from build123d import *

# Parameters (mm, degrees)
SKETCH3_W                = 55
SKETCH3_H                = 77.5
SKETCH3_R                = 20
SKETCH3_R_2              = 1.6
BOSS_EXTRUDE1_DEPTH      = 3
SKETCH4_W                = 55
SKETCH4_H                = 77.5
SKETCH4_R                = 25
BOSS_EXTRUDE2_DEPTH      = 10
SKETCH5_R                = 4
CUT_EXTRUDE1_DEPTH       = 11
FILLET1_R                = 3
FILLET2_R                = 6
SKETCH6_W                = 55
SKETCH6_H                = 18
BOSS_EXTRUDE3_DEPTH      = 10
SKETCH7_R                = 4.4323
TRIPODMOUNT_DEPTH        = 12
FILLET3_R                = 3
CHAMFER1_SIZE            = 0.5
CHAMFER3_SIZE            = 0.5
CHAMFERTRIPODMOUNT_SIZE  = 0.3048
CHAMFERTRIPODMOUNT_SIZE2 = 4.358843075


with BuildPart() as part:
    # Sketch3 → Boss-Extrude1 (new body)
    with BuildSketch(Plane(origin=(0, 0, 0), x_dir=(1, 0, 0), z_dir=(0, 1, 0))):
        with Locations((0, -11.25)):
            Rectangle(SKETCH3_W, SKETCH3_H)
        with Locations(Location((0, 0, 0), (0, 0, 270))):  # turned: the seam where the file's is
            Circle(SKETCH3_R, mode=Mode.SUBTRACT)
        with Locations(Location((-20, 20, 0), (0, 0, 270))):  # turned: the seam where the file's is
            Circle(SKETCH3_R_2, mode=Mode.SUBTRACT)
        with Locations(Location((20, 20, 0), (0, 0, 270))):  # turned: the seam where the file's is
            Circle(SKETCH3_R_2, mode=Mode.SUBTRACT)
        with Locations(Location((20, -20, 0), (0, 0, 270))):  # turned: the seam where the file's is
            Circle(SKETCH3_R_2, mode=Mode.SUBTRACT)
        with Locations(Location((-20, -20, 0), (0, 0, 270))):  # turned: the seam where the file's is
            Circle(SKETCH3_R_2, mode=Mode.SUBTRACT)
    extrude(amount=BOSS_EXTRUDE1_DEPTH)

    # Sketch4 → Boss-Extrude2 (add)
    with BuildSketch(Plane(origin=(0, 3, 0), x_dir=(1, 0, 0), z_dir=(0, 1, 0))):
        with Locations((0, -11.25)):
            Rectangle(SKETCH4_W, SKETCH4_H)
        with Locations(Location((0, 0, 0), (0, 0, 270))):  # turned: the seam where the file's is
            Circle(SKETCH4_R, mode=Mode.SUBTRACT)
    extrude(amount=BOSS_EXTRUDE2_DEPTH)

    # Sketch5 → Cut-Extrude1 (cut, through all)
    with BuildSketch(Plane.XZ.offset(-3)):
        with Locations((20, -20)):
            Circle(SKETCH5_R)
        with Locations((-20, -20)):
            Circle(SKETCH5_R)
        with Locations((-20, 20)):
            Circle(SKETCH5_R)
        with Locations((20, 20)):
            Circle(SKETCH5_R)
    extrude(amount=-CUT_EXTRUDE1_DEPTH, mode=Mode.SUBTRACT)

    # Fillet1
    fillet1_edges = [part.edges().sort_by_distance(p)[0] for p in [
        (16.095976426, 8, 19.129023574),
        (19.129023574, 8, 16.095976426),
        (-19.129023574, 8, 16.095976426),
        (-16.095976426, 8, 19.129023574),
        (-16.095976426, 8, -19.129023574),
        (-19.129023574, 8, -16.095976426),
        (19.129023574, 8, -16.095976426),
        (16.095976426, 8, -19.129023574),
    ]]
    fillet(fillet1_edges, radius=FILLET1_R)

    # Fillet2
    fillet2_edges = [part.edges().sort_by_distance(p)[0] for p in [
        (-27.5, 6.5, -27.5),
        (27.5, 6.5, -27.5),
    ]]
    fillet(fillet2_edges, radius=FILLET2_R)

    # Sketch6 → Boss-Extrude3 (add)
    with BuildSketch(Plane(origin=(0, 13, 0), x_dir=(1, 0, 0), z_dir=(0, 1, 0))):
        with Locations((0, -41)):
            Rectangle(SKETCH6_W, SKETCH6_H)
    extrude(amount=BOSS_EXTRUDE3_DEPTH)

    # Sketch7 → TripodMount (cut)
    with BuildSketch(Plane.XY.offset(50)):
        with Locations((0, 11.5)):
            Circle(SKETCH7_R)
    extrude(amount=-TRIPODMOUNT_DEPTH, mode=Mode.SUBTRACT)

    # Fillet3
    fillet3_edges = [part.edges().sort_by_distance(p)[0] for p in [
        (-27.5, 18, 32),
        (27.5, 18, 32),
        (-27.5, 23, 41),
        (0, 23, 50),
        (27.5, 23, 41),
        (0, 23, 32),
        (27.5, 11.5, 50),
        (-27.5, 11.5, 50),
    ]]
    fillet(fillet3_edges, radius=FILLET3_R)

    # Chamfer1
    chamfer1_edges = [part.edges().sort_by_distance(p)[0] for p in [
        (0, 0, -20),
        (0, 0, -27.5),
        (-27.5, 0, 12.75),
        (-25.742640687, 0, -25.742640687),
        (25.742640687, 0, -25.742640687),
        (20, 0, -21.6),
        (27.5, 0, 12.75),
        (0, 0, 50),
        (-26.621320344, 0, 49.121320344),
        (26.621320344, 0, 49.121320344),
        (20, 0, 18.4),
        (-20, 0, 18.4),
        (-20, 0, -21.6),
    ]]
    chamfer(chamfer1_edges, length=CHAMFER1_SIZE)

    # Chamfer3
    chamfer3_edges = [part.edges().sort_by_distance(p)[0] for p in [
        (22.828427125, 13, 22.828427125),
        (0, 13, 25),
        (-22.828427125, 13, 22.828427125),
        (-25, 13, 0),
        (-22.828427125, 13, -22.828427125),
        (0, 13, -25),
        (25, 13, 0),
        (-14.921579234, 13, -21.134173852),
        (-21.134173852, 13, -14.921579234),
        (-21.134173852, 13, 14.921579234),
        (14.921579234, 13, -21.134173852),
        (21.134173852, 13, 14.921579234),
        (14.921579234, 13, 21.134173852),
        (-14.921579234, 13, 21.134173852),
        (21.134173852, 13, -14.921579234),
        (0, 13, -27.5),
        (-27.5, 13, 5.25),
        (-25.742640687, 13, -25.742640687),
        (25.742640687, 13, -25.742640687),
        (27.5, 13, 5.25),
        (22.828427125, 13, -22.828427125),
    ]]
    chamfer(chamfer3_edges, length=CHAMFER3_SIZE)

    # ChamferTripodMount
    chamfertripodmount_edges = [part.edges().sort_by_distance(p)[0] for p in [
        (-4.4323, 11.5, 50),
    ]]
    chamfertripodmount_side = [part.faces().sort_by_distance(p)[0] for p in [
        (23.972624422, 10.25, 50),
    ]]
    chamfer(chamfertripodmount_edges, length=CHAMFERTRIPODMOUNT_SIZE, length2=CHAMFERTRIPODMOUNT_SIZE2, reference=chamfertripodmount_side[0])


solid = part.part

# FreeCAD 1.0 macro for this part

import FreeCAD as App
import Part
import Sketcher

V = App.Vector
Q = App.Units.Quantity


def edges_at(feature, points):
    """Names of the edges that pass closest to the given points."""
    edges = feature.Shape.Edges
    near = lambda p: min(range(len(edges)), key=lambda i: edges[i].distToShape(Part.Vertex(*p))[0])
    return sorted({f"Edge{near(p) + 1}" for p in points})

doc = App.newDocument("Part")
body = doc.addObject("PartDesign::Body", "Body")

# Sketch on XZ plane
sketch1 = body.newObject("Sketcher::SketchObject", "Sketch")
sketch1.AttachmentSupport = (doc.getObject("XZ_Plane"), [""])
sketch1.MapMode = "FlatFace"
sketch1.addGeometry(Part.LineSegment(V(-27.5, -27.5, 0), V(-27.5, 50, 0)), False)
sketch1.addGeometry(Part.LineSegment(V(-27.5, 50, 0), V(27.5, 50, 0)), False)
sketch1.addGeometry(Part.LineSegment(V(27.5, 50, 0), V(27.5, -27.5, 0)), False)
sketch1.addGeometry(Part.LineSegment(V(27.5, -27.5, 0), V(-27.5, -27.5, 0)), False)
sketch1.addGeometry(Part.Circle(V(-20, 20, 0), V(0, 0, 1), 1.6), False)
sketch1.addGeometry(Part.Circle(V(20, 20, 0), V(0, 0, 1), 1.6), False)
sketch1.addGeometry(Part.Circle(V(-20, -20, 0), V(0, 0, 1), 1.6), False)
sketch1.addGeometry(Part.Circle(V(0, 0, 0), V(0, 0, 1), 20), False)
sketch1.addGeometry(Part.Circle(V(20, -20, 0), V(0, 0, 1), 1.6), False)
sketch1.addConstraint(Sketcher.Constraint("Coincident", 0, 2, 1, 1))
sketch1.addConstraint(Sketcher.Constraint("Coincident", 1, 2, 2, 1))
sketch1.addConstraint(Sketcher.Constraint("Coincident", 2, 2, 3, 1))
sketch1.addConstraint(Sketcher.Constraint("Coincident", 3, 2, 0, 1))
sketch1.addConstraint(Sketcher.Constraint("Vertical", 0))
sketch1.addConstraint(Sketcher.Constraint("Horizontal", 1))
sketch1.addConstraint(Sketcher.Constraint("Vertical", 2))
sketch1.addConstraint(Sketcher.Constraint("Horizontal", 3))
sketch1.addConstraint(Sketcher.Constraint("Coincident", 7, 3, -1, 1))
sketch1.addConstraint(Sketcher.Constraint("Equal", 4, 5))
sketch1.addConstraint(Sketcher.Constraint("Equal", 5, 6))
sketch1.addConstraint(Sketcher.Constraint("Equal", 6, 8))
sketch1.addConstraint(Sketcher.Constraint("Symmetric", 5, 3, 6, 3, -1, 1))
sketch1.addConstraint(Sketcher.Constraint("Symmetric", 4, 3, 8, 3, -1, 1))
sketch1.addConstraint(Sketcher.Constraint("Symmetric", 4, 3, 5, 3, -2))
sketch1.addConstraint(Sketcher.Constraint("Diameter", 7, Q("40 mm")))
sketch1.addConstraint(Sketcher.Constraint("Diameter", 4, Q("3.2 mm")))
sketch1.addConstraint(Sketcher.Constraint("DistanceX", 1, 1, 1, 2, Q("55 mm")))
sketch1.addConstraint(Sketcher.Constraint("DistanceY", 0, 1, 0, 2, Q("77.5 mm")))
sketch1.addConstraint(Sketcher.Constraint("DistanceX", 4, 3, -1, 1, Q("20 mm")))
sketch1.addConstraint(Sketcher.Constraint("DistanceY", -1, 1, 4, 3, Q("20 mm")))
sketch1.addConstraint(Sketcher.Constraint("DistanceY", -1, 1, 0, 2, Q("50 mm")))
sketch1.addConstraint(Sketcher.Constraint("DistanceX", 0, 2, -1, 1, Q("27.5 mm")))
pad1 = body.newObject("PartDesign::Pad", "Pad")
pad1.Profile = sketch1
pad1.Length = 3
pad1.Reversed = True

# Sketch on XZ plane
sketch2 = body.newObject("Sketcher::SketchObject", "Sketch001")
sketch2.AttachmentSupport = (doc.getObject("XZ_Plane"), [""])
sketch2.MapMode = "FlatFace"
sketch2.AttachmentOffset = App.Placement(V(0, 0, -3), App.Rotation())
sketch2.addGeometry(Part.LineSegment(V(-28, -28, 0), V(-28, 50, 0)), False)
sketch2.addGeometry(Part.LineSegment(V(-28, 50, 0), V(28, 50, 0)), False)
sketch2.addGeometry(Part.LineSegment(V(28, 50, 0), V(28, -28, 0)), False)
sketch2.addGeometry(Part.LineSegment(V(28, -28, 0), V(-28, -28, 0)), False)
sketch2.addGeometry(Part.Circle(V(0, 0, 0), V(0, 0, 1), 25), False)
sketch2.addConstraint(Sketcher.Constraint("Coincident", 0, 2, 1, 1))
sketch2.addConstraint(Sketcher.Constraint("Coincident", 1, 2, 2, 1))
sketch2.addConstraint(Sketcher.Constraint("Coincident", 2, 2, 3, 1))
sketch2.addConstraint(Sketcher.Constraint("Coincident", 3, 2, 0, 1))
sketch2.addConstraint(Sketcher.Constraint("Vertical", 0))
sketch2.addConstraint(Sketcher.Constraint("Horizontal", 1))
sketch2.addConstraint(Sketcher.Constraint("Vertical", 2))
sketch2.addConstraint(Sketcher.Constraint("Horizontal", 3))
sketch2.addConstraint(Sketcher.Constraint("Coincident", 4, 3, -1, 1))
sketch2.addConstraint(Sketcher.Constraint("Diameter", 4, Q("50 mm")))
sketch2.addConstraint(Sketcher.Constraint("DistanceX", 1, 1, 1, 2, Q("55 mm")))
sketch2.addConstraint(Sketcher.Constraint("DistanceY", 0, 1, 0, 2, Q("77.5 mm")))
sketch2.addConstraint(Sketcher.Constraint("DistanceY", -1, 1, 0, 2, Q("50 mm")))
sketch2.addConstraint(Sketcher.Constraint("DistanceX", 0, 2, -1, 1, Q("27.5 mm")))
pad2 = body.newObject("PartDesign::Pad", "Pad001")
pad2.Profile = sketch2
pad2.Length = 10
pad2.Reversed = True

# Sketch on XZ plane
sketch3 = body.newObject("Sketcher::SketchObject", "Sketch002")
sketch3.AttachmentSupport = (doc.getObject("XZ_Plane"), [""])
sketch3.MapMode = "FlatFace"
sketch3.AttachmentOffset = App.Placement(V(0, 0, -3), App.Rotation())
sketch3.addGeometry(Part.Circle(V(20, -20, 0), V(0, 0, 1), 4), False)
sketch3.addGeometry(Part.Circle(V(-20, -20, 0), V(0, 0, 1), 4), False)
sketch3.addGeometry(Part.Circle(V(-20, 20, 0), V(0, 0, 1), 4), False)
sketch3.addGeometry(Part.Circle(V(20, 20, 0), V(0, 0, 1), 4), False)
sketch3.addConstraint(Sketcher.Constraint("Equal", 0, 1))
sketch3.addConstraint(Sketcher.Constraint("Equal", 1, 2))
sketch3.addConstraint(Sketcher.Constraint("Equal", 2, 3))
sketch3.addConstraint(Sketcher.Constraint("Symmetric", 0, 3, 2, 3, -1, 1))
sketch3.addConstraint(Sketcher.Constraint("Symmetric", 1, 3, 3, 3, -1, 1))
sketch3.addConstraint(Sketcher.Constraint("Symmetric", 0, 3, 1, 3, -2))
sketch3.addConstraint(Sketcher.Constraint("Diameter", 0, Q("8 mm")))
sketch3.addConstraint(Sketcher.Constraint("DistanceX", -1, 1, 0, 3, Q("20 mm")))
sketch3.addConstraint(Sketcher.Constraint("DistanceY", 0, 3, -1, 1, Q("20 mm")))
pocket1 = body.newObject("PartDesign::Pocket", "Pocket")
pocket1.Profile = sketch3
pocket1.Type = "ThroughAll"
doc.recompute()

fillet = body.newObject("PartDesign::Fillet", "Fillet")
fillet.Base = (pocket1, edges_at(pocket1, [
    (16.096, 8, 19.129),
    (19.129, 8, 16.096),
    (-19.129, 8, 16.096),
    (-16.096, 8, 19.129),
    (-16.096, 8, -19.129),
    (-19.129, 8, -16.096),
    (19.129, 8, -16.096),
    (16.096, 8, -19.129),
]))
fillet.Radius = 3
doc.recompute()

fillet2 = body.newObject("PartDesign::Fillet", "Fillet001")
fillet2.Base = (fillet, edges_at(fillet, [(-27.5, 6.5, -27.5), (27.5, 6.5, -27.5)]))
fillet2.Radius = 6

# Sketch on XZ plane
sketch4 = body.newObject("Sketcher::SketchObject", "Sketch003")
sketch4.AttachmentSupport = (doc.getObject("XZ_Plane"), [""])
sketch4.MapMode = "FlatFace"
sketch4.AttachmentOffset = App.Placement(V(0, 0, -13), App.Rotation())
sketch4.addGeometry(Part.LineSegment(V(-28, 32, 0), V(-28, 50, 0)), False)
sketch4.addGeometry(Part.LineSegment(V(-28, 50, 0), V(28, 50, 0)), False)
sketch4.addGeometry(Part.LineSegment(V(28, 50, 0), V(28, 32, 0)), False)
sketch4.addGeometry(Part.LineSegment(V(28, 32, 0), V(-28, 32, 0)), False)
sketch4.addConstraint(Sketcher.Constraint("Coincident", 0, 2, 1, 1))
sketch4.addConstraint(Sketcher.Constraint("Coincident", 1, 2, 2, 1))
sketch4.addConstraint(Sketcher.Constraint("Coincident", 2, 2, 3, 1))
sketch4.addConstraint(Sketcher.Constraint("Coincident", 3, 2, 0, 1))
sketch4.addConstraint(Sketcher.Constraint("Vertical", 0))
sketch4.addConstraint(Sketcher.Constraint("Horizontal", 1))
sketch4.addConstraint(Sketcher.Constraint("Vertical", 2))
sketch4.addConstraint(Sketcher.Constraint("Horizontal", 3))
sketch4.addConstraint(Sketcher.Constraint("DistanceX", 1, 1, 1, 2, Q("55 mm")))
sketch4.addConstraint(Sketcher.Constraint("DistanceY", 0, 1, 0, 2, Q("18 mm")))
sketch4.addConstraint(Sketcher.Constraint("DistanceY", -1, 1, 0, 2, Q("50 mm")))
sketch4.addConstraint(Sketcher.Constraint("DistanceX", 0, 2, -1, 1, Q("27.5 mm")))
pad3 = body.newObject("PartDesign::Pad", "Pad002")
pad3.Profile = sketch4
pad3.Length = 10
pad3.Reversed = True

# Sketch on XY plane
sketch5 = body.newObject("Sketcher::SketchObject", "Sketch004")
sketch5.AttachmentSupport = (doc.getObject("XY_Plane"), [""])
sketch5.MapMode = "FlatFace"
sketch5.AttachmentOffset = App.Placement(V(0, 0, 50), App.Rotation())
sketch5.addGeometry(Part.Circle(V(0, 11.5, 0), V(0, 0, 1), 4.4), False)
sketch5.addConstraint(Sketcher.Constraint("PointOnObject", 0, 3, -2))
sketch5.addConstraint(Sketcher.Constraint("Diameter", 0, Q("8.8646 mm")))
sketch5.addConstraint(Sketcher.Constraint("DistanceY", -1, 1, 0, 3, Q("11.5 mm")))
pocket2 = body.newObject("PartDesign::Pocket", "Pocket001")
pocket2.Profile = sketch5
pocket2.Length = 12
doc.recompute()

fillet3 = body.newObject("PartDesign::Fillet", "Fillet002")
fillet3.Base = (pocket2, edges_at(pocket2, [
    (-27.5, 18, 32),
    (27.5, 18, 32),
    (-27.5, 23, 41),
    (0, 23, 50),
    (27.5, 23, 41),
    (0, 23, 32),
    (27.5, 11.5, 50),
    (-27.5, 11.5, 50),
]))
fillet3.Radius = 3
doc.recompute()

chamfer = body.newObject("PartDesign::Chamfer", "Chamfer")
chamfer.Base = (fillet3, edges_at(fillet3, [
    (0, 0, -20),
    (0, 0, -27.5),
    (-27.5, 0, 12.75),
    (-25.743, 0, -25.743),
    (25.743, 0, -25.743),
    (20, 0, -21.6),
    (27.5, 0, 12.75),
    (0, 0, 50),
    (-26.621, 0, 49.121),
    (26.621, 0, 49.121),
    (20, 0, 18.4),
    (-20, 0, 18.4),
    (-20, 0, -21.6),
]))
chamfer.Size = 0.5
doc.recompute()

chamfer2 = body.newObject("PartDesign::Chamfer", "Chamfer001")
chamfer2.Base = (chamfer, edges_at(chamfer, [
    (22.828, 13, 22.828),
    (0, 13, 25),
    (-22.828, 13, 22.828),
    (-25, 13, 0),
    (-22.828, 13, -22.828),
    (0, 13, -25),
    (25, 13, 0),
    (-14.922, 13, -21.134),
    (-21.134, 13, -14.922),
    (-21.134, 13, 14.922),
    (14.922, 13, -21.134),
    (21.134, 13, 14.922),
    (14.922, 13, 21.134),
    (-14.922, 13, 21.134),
    (21.134, 13, -14.922),
    (0, 13, -27.5),
    (-27.5, 13, 6.75),
    (-25.743, 13, -25.743),
    (25.743, 13, -25.743),
    (27.5, 13, 6.75),
    (22.828, 13, -22.828),
]))
chamfer2.Size = 0.5
doc.recompute()

chamfer3 = body.newObject("PartDesign::Chamfer", "Chamfer002")
chamfer3.Base = (chamfer2, edges_at(chamfer2, [(-4.432, 11.5, 50)]))
chamfer3.ChamferType = "Two distances"
chamfer3.Size = 0.3048
chamfer3.Size2 = 4.358843

doc.recompute()
